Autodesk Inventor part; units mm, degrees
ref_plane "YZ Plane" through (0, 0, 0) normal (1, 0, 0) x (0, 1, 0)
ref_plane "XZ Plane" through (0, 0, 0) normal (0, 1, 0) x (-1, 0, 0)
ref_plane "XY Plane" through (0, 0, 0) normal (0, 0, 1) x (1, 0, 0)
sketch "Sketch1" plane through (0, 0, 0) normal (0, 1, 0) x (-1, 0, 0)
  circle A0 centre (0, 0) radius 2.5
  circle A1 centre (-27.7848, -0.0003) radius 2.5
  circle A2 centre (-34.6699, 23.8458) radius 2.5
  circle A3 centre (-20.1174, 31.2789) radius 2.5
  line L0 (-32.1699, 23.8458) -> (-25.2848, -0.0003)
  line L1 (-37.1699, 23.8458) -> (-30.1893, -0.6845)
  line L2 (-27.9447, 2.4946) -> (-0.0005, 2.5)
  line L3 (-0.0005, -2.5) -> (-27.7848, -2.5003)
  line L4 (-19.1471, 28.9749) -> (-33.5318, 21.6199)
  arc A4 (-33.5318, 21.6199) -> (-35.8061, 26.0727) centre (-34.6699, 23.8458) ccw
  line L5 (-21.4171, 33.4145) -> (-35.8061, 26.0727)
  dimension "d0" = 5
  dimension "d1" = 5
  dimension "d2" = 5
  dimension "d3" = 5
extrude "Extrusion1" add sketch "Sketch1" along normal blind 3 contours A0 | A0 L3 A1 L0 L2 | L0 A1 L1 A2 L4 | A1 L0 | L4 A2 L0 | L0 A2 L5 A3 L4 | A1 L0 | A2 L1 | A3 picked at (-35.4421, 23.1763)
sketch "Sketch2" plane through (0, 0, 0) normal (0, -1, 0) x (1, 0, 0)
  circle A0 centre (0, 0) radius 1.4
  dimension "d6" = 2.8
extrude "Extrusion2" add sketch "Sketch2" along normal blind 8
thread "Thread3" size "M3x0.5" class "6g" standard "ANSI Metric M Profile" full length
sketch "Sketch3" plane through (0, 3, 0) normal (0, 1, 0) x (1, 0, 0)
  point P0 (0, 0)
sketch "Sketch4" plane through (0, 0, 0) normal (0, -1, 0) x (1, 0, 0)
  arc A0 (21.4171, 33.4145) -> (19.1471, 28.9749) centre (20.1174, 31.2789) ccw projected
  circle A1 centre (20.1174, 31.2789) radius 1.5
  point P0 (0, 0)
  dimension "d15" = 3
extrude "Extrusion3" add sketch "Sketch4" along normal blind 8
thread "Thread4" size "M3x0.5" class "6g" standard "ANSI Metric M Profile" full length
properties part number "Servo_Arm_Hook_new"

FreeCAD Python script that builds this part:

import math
import FreeCAD as App
import Part
import Sketcher
Q = App.Units.Quantity

doc = App.newDocument("Part")
body = doc.addObject("PartDesign::Body", "Body")

# Sketch on XZ plane
sketch1 = doc.addObject("Sketcher::SketchObject", "Sketch")
body.addObject(sketch1)
sketch1.AttachmentSupport = (doc.XZ_Plane, [""])
sketch1.MapMode = "FlatFace"
sketch1.addGeometry([
    Part.ArcOfCircle(Part.Circle(App.Vector(0, 0, 0), App.Vector(0, 0, 1), 2.5), math.radians(89.988541), math.radians(270.011459)),  # 0
    Part.LineSegment(App.Vector(0.0005, 2.5, 0), App.Vector(26.005262, 2.494975, 0)),  # 1
    Part.LineSegment(App.Vector(26.005262, 2.494975, 0), App.Vector(31.785082, 22.513009, 0)),  # 2
    Part.LineSegment(App.Vector(31.785082, 22.513009, 0), App.Vector(19.1471, 28.9749, 0)),  # 3
    Part.ArcOfCircle(Part.Circle(App.Vector(20.1174, 31.2789, 0), App.Vector(0, 0, 1), 2.5), math.radians(58.675818), math.radians(247.162232)),  # 4
    Part.LineSegment(App.Vector(21.4171, 33.4145, 0), App.Vector(35.8061, 26.0727, 0)),  # 5
    Part.ArcOfCircle(Part.Circle(App.Vector(34.6699, 23.8458, 0), App.Vector(0, 0, 1), 2.5), math.radians(0), math.radians(62.968598)),  # 6
    Part.LineSegment(App.Vector(37.1699, 23.8458, 0), App.Vector(30.1893, -0.6845, 0)),  # 7
    Part.ArcOfCircle(Part.Circle(App.Vector(27.7848, -0.0003, 0), App.Vector(0, 0, 1), 2.5), math.radians(-90), math.radians(-15.883692)),  # 8
    Part.LineSegment(App.Vector(27.7848, -2.5003, 0), App.Vector(0.0005, -2.5, 0)),  # 9
], False)
sketch1.addConstraint([
    Sketcher.Constraint("Coincident", 0, 1, 1, 1),
    Sketcher.Constraint("Coincident", 1, 2, 2, 1),
    Sketcher.Constraint("Coincident", 2, 2, 3, 1),
    Sketcher.Constraint("Coincident", 3, 2, 4, 2),
    Sketcher.Constraint("Coincident", 4, 1, 5, 1),
    Sketcher.Constraint("Coincident", 5, 2, 6, 2),
    Sketcher.Constraint("Coincident", 6, 1, 7, 1),
    Sketcher.Constraint("Coincident", 7, 2, 8, 2),
    Sketcher.Constraint("Coincident", 8, 1, 9, 1),
    Sketcher.Constraint("Coincident", 9, 2, 0, 2),
    Sketcher.Constraint("Coincident", 0, 3, -1, 1),
    Sketcher.Constraint("Radius", 0, Q("2.5 mm")),
    Sketcher.Constraint("Radius", 4, Q("2.5 mm")),
    Sketcher.Constraint("Radius", 6, Q("2.5 mm")),
    Sketcher.Constraint("Radius", 8, Q("2.5 mm")),
    Sketcher.Constraint("DistanceX", -1, 1, 6, 3, Q("34.67 mm")),
    Sketcher.Constraint("DistanceY", 1, 2, 3, 2, Q("26.48 mm")),
    Sketcher.Constraint("DistanceX", 3, 2, 4, 1, Q("2.27 mm")),
    Sketcher.Constraint("DistanceY", -1, 1, 4, 3, Q("31.279 mm")),
    Sketcher.Constraint("DistanceY", -1, 1, 1, 2, Q("2.495 mm")),
    Sketcher.Constraint("DistanceX", -1, 1, 2, 2, Q("31.785 mm")),
    Sketcher.Constraint("DistanceY", -1, 1, 2, 2, Q("22.513 mm")),
    Sketcher.Constraint("DistanceX", -1, 1, 3, 2, Q("19.147 mm")),
    Sketcher.Constraint("DistanceX", -1, 1, 5, 2, Q("35.806 mm")),
    Sketcher.Constraint("DistanceY", 6, 3, 4, 3, Q("7.433 mm")),
    Sketcher.Constraint("DistanceX", 8, 3, 6, 3, Q("6.885 mm")),
    Sketcher.Constraint("DistanceY", 8, 3, 6, 3, Q("23.846 mm")),
    Sketcher.Constraint("DistanceX", 0, 1, 4, 3, Q("20.117 mm")),
    Sketcher.Constraint("DistanceY", 6, 1, 5, 2, Q("2.227 mm")),
    Sketcher.Constraint("DistanceX", 1, 2, 7, 2, Q("4.184 mm")),
    Sketcher.Constraint("DistanceX", 8, 1, 6, 3, Q("6.885 mm")),
    Sketcher.Constraint("Distance", 1, Q("26.0048 mm")),
    Sketcher.Constraint("Distance", 9, Q("27.7843 mm")),
])
pad1 = doc.addObject("PartDesign::Pad", "Pad")
body.addObject(pad1)
pad1.Profile = sketch1
pad1.Length = 3
pad1.Reversed = True

# Sketch on XZ plane
sketch2 = doc.addObject("Sketcher::SketchObject", "Sketch001")
body.addObject(sketch2)
sketch2.AttachmentSupport = (doc.XZ_Plane, [""])
sketch2.MapMode = "FlatFace"
sketch2.addGeometry(Part.Circle(App.Vector(0, 0, 0), App.Vector(0, 0, 1), 1.4), False)
sketch2.addConstraint([
    Sketcher.Constraint("Coincident", 0, 3, -1, 1),
    Sketcher.Constraint("Diameter", 0, Q("2.8 mm")),
])
pad2 = doc.addObject("PartDesign::Pad", "Pad001")
body.addObject(pad2)
pad2.Profile = sketch2
pad2.Length = 8

# Sketch on XZ plane
sketch3 = doc.addObject("Sketcher::SketchObject", "Sketch002")
body.addObject(sketch3)
sketch3.AttachmentSupport = (doc.XZ_Plane, [""])
sketch3.MapMode = "FlatFace"
sketch3.addGeometry(Part.Circle(App.Vector(20.1174, 31.2789, 0), App.Vector(0, 0, 1), 1.5), False)
sketch3.addConstraint([
    Sketcher.Constraint("Diameter", 0, Q("3 mm")),
    Sketcher.Constraint("DistanceY", -1, 1, 0, 3, Q("31.279 mm")),
    Sketcher.Constraint("DistanceX", -1, 1, 0, 3, Q("20.1174 mm")),
])
pad3 = doc.addObject("PartDesign::Pad", "Pad002")
body.addObject(pad3)
pad3.Profile = sketch3
pad3.Length = 8

doc.recompute()
